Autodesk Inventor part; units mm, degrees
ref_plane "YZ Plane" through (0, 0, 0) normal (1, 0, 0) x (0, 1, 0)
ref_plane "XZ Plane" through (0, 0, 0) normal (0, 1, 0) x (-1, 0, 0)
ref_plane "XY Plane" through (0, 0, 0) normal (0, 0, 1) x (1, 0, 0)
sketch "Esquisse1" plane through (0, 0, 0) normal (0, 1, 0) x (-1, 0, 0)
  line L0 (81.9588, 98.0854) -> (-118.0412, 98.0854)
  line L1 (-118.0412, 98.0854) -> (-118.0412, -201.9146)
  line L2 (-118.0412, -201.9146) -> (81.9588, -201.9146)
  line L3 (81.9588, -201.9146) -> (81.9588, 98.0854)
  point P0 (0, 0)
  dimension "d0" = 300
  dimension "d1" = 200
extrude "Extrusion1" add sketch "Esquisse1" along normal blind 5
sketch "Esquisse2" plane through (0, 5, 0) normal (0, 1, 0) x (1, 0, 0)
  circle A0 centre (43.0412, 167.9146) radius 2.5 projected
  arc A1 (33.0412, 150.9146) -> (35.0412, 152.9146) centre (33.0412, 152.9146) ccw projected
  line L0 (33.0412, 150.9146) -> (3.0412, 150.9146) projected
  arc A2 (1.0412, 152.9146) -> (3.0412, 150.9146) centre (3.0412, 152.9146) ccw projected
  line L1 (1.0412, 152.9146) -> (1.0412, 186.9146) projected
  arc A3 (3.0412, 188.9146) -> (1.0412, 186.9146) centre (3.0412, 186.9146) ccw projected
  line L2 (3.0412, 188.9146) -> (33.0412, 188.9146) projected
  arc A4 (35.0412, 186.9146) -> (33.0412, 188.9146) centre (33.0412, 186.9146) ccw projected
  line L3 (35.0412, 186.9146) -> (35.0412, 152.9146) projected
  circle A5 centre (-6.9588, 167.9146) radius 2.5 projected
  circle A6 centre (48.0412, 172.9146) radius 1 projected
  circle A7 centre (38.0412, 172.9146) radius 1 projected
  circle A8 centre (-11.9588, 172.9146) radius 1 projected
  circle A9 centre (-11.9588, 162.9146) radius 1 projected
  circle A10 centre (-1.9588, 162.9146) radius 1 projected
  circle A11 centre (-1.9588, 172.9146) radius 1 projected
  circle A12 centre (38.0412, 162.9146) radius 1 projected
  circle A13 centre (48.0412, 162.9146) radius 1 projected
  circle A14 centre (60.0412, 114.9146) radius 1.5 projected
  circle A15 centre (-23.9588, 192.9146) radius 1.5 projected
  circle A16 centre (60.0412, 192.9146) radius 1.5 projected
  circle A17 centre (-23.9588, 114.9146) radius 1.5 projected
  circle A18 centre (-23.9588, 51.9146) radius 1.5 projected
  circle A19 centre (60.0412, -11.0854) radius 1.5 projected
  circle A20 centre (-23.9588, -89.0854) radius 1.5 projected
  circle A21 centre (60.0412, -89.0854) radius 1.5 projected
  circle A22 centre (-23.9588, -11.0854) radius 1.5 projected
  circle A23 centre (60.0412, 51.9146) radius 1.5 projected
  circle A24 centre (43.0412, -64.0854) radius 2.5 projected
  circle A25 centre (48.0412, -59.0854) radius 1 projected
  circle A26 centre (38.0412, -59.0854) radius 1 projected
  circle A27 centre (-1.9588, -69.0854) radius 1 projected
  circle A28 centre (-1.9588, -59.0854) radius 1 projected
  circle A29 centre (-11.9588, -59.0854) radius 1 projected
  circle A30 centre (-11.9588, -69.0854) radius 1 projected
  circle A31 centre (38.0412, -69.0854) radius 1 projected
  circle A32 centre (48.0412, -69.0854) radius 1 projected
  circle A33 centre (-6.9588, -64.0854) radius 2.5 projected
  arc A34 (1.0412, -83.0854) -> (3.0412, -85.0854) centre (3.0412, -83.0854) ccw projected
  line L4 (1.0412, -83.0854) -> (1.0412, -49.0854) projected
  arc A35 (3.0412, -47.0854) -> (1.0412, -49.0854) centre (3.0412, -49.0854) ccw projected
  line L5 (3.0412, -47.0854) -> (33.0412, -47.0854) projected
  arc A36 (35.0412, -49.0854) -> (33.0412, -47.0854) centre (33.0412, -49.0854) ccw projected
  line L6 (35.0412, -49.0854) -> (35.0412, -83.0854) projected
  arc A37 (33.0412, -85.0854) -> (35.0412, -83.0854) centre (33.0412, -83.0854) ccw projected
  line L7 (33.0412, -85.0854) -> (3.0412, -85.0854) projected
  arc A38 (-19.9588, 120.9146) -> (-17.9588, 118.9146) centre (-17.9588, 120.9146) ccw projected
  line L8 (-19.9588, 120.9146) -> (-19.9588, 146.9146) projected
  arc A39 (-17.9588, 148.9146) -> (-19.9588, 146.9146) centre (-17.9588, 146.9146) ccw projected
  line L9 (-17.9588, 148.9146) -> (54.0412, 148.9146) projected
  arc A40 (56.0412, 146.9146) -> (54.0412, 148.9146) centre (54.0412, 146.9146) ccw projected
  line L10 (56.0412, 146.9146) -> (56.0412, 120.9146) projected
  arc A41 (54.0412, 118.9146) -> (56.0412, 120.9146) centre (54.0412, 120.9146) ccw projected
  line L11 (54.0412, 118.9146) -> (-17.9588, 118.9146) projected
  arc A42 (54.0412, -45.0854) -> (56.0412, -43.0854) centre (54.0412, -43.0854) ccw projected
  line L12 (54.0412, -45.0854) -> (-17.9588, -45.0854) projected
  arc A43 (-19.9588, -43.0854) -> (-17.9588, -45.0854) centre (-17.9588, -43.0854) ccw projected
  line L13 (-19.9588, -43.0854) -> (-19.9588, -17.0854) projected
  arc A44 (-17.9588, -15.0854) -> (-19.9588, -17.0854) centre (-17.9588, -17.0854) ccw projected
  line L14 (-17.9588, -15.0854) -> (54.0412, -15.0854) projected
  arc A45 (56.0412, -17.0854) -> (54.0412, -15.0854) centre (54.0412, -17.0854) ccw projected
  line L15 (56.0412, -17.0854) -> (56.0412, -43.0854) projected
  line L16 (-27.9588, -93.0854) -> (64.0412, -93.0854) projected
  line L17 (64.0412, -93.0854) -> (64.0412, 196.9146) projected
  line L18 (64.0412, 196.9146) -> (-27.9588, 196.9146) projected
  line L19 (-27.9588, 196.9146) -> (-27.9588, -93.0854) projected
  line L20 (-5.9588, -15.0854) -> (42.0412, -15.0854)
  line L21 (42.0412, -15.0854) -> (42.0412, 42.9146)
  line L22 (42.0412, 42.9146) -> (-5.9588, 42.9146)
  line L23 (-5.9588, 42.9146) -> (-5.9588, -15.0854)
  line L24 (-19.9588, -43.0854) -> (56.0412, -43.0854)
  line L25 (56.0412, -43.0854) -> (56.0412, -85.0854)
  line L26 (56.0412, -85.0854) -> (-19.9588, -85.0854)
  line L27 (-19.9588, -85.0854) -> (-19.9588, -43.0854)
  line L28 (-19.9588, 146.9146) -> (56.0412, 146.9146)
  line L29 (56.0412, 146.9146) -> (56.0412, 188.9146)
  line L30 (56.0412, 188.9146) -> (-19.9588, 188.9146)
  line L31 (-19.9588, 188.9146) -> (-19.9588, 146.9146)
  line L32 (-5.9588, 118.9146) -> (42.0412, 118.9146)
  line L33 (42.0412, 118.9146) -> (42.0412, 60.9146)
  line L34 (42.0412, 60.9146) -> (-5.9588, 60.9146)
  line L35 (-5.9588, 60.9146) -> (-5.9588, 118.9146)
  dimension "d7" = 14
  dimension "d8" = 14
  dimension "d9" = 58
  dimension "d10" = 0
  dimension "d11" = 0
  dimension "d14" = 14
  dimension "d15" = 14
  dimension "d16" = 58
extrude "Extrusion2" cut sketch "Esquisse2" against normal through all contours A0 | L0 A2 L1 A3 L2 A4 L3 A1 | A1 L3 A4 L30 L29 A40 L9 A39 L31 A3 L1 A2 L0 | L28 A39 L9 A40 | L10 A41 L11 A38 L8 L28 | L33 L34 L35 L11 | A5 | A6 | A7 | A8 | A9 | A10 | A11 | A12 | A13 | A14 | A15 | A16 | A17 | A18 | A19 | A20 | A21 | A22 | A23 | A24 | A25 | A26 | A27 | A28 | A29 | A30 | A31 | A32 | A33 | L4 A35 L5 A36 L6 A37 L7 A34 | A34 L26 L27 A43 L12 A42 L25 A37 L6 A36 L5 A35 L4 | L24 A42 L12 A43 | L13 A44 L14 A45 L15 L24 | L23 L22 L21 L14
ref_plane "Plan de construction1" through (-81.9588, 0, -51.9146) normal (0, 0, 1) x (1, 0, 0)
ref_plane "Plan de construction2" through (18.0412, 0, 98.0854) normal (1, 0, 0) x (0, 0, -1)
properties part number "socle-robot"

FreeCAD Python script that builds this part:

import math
import FreeCAD as App
import Part
import Sketcher

V = App.Vector
Q = App.Units.Quantity

doc = App.newDocument("Part")
body = doc.addObject("PartDesign::Body", "Body")

# Sketch on XZ plane
sketch1 = body.newObject("Sketcher::SketchObject", "Sketch")
sketch1.AttachmentSupport = (doc.getObject("XZ_Plane"), [""])
sketch1.MapMode = "FlatFace"
sketch1.addGeometry([
    Part.LineSegment(V(-82, -202, 0), V(-82, 98, 0)),
    Part.LineSegment(V(-82, 98, 0), V(118, 98, 0)),
    Part.LineSegment(V(118, 98, 0), V(118, -202, 0)),
    Part.LineSegment(V(118, -202, 0), V(-82, -202, 0)),
], False)
sketch1.addConstraint([
    Sketcher.Constraint("Coincident", 0, 2, 1, 1),
    Sketcher.Constraint("Coincident", 1, 2, 2, 1),
    Sketcher.Constraint("Coincident", 2, 2, 3, 1),
    Sketcher.Constraint("Coincident", 3, 2, 0, 1),
    Sketcher.Constraint("Vertical", 0),
    Sketcher.Constraint("Horizontal", 1),
    Sketcher.Constraint("Vertical", 2),
    Sketcher.Constraint("Horizontal", 3),
    Sketcher.Constraint("DistanceX", 1, 1, 1, 2, Q("200 mm")),
    Sketcher.Constraint("DistanceY", 0, 1, 0, 2, Q("300 mm")),
    Sketcher.Constraint("DistanceX", 0, 2, -1, 1, Q("81.9588 mm")),
    Sketcher.Constraint("DistanceY", -1, 1, 0, 2, Q("98.0854 mm")),
])
pad1 = body.newObject("PartDesign::Pad", "Pad")
pad1.Profile = sketch1
pad1.Length = 5
pad1.Reversed = True

# Sketch on XZ plane
sketch2 = body.newObject("Sketcher::SketchObject", "Sketch001")
sketch2.AttachmentSupport = (doc.getObject("XZ_Plane"), [""])
sketch2.MapMode = "FlatFace"
sketch2.AttachmentOffset = App.Placement(V(0, 0, -5), App.Rotation())
sketch2.addGeometry([
    Part.LineSegment(V(56, -188.9, 0), V(-20, -188.9, 0)),  # 0
    Part.LineSegment(V(-20, -188.9, 0), V(-20, -120.9, 0)),  # 1
    Part.ArcOfCircle(Part.Circle(V(-18, -120.9, 0), V(0, 0, 1), 2), math.radians(90), math.radians(180)),  # 2
    Part.LineSegment(V(-18, -118.9, 0), V(-6, -118.9, 0)),  # 3
    Part.LineSegment(V(-6, -118.9, 0), V(-6, -60.9, 0)),  # 4
    Part.LineSegment(V(-6, -60.9, 0), V(42, -60.9, 0)),  # 5
    Part.LineSegment(V(42, -60.9, 0), V(42, -118.9, 0)),  # 6
    Part.LineSegment(V(42, -118.9, 0), V(54, -118.9, 0)),  # 7
    Part.ArcOfCircle(Part.Circle(V(54, -120.9, 0), V(0, 0, 1), 2), math.radians(0), math.radians(90)),  # 8
    Part.LineSegment(V(56, -120.9, 0), V(56, -188.9, 0)),  # 9
    Part.Circle(V(60, -114.9, 0), V(0, 0, 1), 1.5),  # 10
    Part.Circle(V(-24, -192.9, 0), V(0, 0, 1), 1.5),  # 11
    Part.Circle(V(60, -192.9, 0), V(0, 0, 1), 1.5),  # 12
    Part.Circle(V(-24, -114.9, 0), V(0, 0, 1), 1.5),  # 13
    Part.Circle(V(-24, -51.9, 0), V(0, 0, 1), 1.5),  # 14
    Part.Circle(V(60, 11.1, 0), V(0, 0, 1), 1.5),  # 15
    Part.Circle(V(-24, 89.1, 0), V(0, 0, 1), 1.5),  # 16
    Part.Circle(V(60, 89.1, 0), V(0, 0, 1), 1.5),  # 17
    Part.Circle(V(-24, 11.1, 0), V(0, 0, 1), 1.5),  # 18
    Part.Circle(V(60, -51.9, 0), V(0, 0, 1), 1.5),  # 19
    Part.LineSegment(V(-20, 85.1, 0), V(56, 85.1, 0)),  # 20
    Part.LineSegment(V(56, 85.1, 0), V(56, 17.1, 0)),  # 21
    Part.ArcOfCircle(Part.Circle(V(54, 17.1, 0), V(0, 0, 1), 2), math.radians(-90), math.radians(0)),  # 22
    Part.LineSegment(V(54, 15.1, 0), V(42, 15.1, 0)),  # 23
    Part.LineSegment(V(42, 15.1, 0), V(42, -42.9, 0)),  # 24
    Part.LineSegment(V(42, -42.9, 0), V(-6, -42.9, 0)),  # 25
    Part.LineSegment(V(-6, -42.9, 0), V(-6, 15.1, 0)),  # 26
    Part.LineSegment(V(-6, 15.1, 0), V(-18, 15.1, 0)),  # 27
    Part.ArcOfCircle(Part.Circle(V(-18, 17.1, 0), V(0, 0, 1), 2), math.radians(180), math.radians(270)),  # 28
    Part.LineSegment(V(-20, 17.1, 0), V(-20, 85.1, 0)),  # 29
], False)
sketch2.addConstraint([
    Sketcher.Constraint("Coincident", 0, 2, 1, 1),
    Sketcher.Constraint("Tangent", 1, 2, 2, 2),
    Sketcher.Constraint("Tangent", 2, 1, 3, 1),
    Sketcher.Constraint("Coincident", 3, 2, 4, 1),
    Sketcher.Constraint("Coincident", 4, 2, 5, 1),
    Sketcher.Constraint("Coincident", 5, 2, 6, 1),
    Sketcher.Constraint("Coincident", 6, 2, 7, 1),
    Sketcher.Constraint("Tangent", 7, 2, 8, 2),
    Sketcher.Constraint("Tangent", 8, 1, 9, 1),
    Sketcher.Constraint("Coincident", 9, 2, 0, 1),
    Sketcher.Constraint("Coincident", 20, 2, 21, 1),
    Sketcher.Constraint("Tangent", 21, 2, 22, 2),
    Sketcher.Constraint("Tangent", 22, 1, 23, 1),
    Sketcher.Constraint("Coincident", 23, 2, 24, 1),
    Sketcher.Constraint("Coincident", 24, 2, 25, 1),
    Sketcher.Constraint("Coincident", 25, 2, 26, 1),
    Sketcher.Constraint("Coincident", 26, 2, 27, 1),
    Sketcher.Constraint("Tangent", 27, 2, 28, 2),
    Sketcher.Constraint("Tangent", 28, 1, 29, 1),
    Sketcher.Constraint("Coincident", 29, 2, 20, 1),
    Sketcher.Constraint("Horizontal", 0),
    Sketcher.Constraint("Vertical", 1),
    Sketcher.Constraint("Horizontal", 3),
    Sketcher.Constraint("Vertical", 4),
    Sketcher.Constraint("Horizontal", 5),
    Sketcher.Constraint("Vertical", 6),
    Sketcher.Constraint("Horizontal", 7),
    Sketcher.Constraint("Vertical", 9),
    Sketcher.Constraint("Horizontal", 20),
    Sketcher.Constraint("Vertical", 21),
    Sketcher.Constraint("Horizontal", 23),
    Sketcher.Constraint("Vertical", 24),
    Sketcher.Constraint("Horizontal", 25),
    Sketcher.Constraint("Vertical", 26),
    Sketcher.Constraint("Horizontal", 27),
    Sketcher.Constraint("Vertical", 29),
    Sketcher.Constraint("Equal", 2, 8),
    Sketcher.Constraint("Equal", 10, 11),
    Sketcher.Constraint("Equal", 11, 12),
    Sketcher.Constraint("Equal", 12, 13),
    Sketcher.Constraint("Equal", 13, 14),
    Sketcher.Constraint("Equal", 14, 15),
    Sketcher.Constraint("Equal", 15, 16),
    Sketcher.Constraint("Equal", 16, 17),
    Sketcher.Constraint("Equal", 17, 18),
    Sketcher.Constraint("Equal", 18, 19),
    Sketcher.Constraint("Equal", 8, 22),
    Sketcher.Constraint("Equal", 22, 28),
    Sketcher.Constraint("Horizontal", 2, 3, 8, 3),
    Sketcher.Constraint("Horizontal", 11, 3, 12, 3),
    Sketcher.Constraint("Horizontal", 10, 3, 13, 3),
    Sketcher.Constraint("Horizontal", 16, 3, 17, 3),
    Sketcher.Constraint("Horizontal", 15, 3, 18, 3),
    Sketcher.Constraint("Horizontal", 14, 3, 19, 3),
    Sketcher.Constraint("Horizontal", 22, 3, 28, 3),
    Sketcher.Constraint("Vertical", 10, 3, 12, 3),
    Sketcher.Constraint("Vertical", 11, 3, 13, 3),
    Sketcher.Constraint("Vertical", 13, 3, 14, 3),
    Sketcher.Constraint("Vertical", 12, 3, 15, 3),
    Sketcher.Constraint("Vertical", 14, 3, 16, 3),
    Sketcher.Constraint("Vertical", 15, 3, 17, 3),
    Sketcher.Constraint("Vertical", 16, 3, 18, 3),
    Sketcher.Constraint("Vertical", 17, 3, 19, 3),
    Sketcher.Constraint("Vertical", 8, 3, 22, 3),
    Sketcher.Constraint("Vertical", 2, 3, 28, 3),
    Sketcher.Constraint("Vertical", 6, 2, 23, 2),
    Sketcher.Constraint("Vertical", 4, 2, 25, 2),
    Sketcher.Constraint("Equal", 3, 7),
    Sketcher.Constraint("Equal", 9, 21),
    Sketcher.Constraint("Equal", 6, 24),
    Sketcher.Constraint("DistanceY", 4, 1, 4, 2, Q("58 mm")),
    Sketcher.Constraint("Diameter", 10, Q("3 mm")),
    Sketcher.Constraint("Radius", 2, Q("2 mm")),
    Sketcher.Constraint("DistanceX", 1, 2, 3, 2, Q("14 mm")),
    Sketcher.Constraint("DistanceX", 0, 2, 0, 1, Q("76 mm")),
    Sketcher.Constraint("DistanceY", 1, 1, 1, 2, Q("68 mm")),
    Sketcher.Constraint("DistanceX", 8, 3, 10, 3, Q("6 mm")),
    Sketcher.Constraint("DistanceY", 8, 3, 10, 3, Q("6 mm")),
    Sketcher.Constraint("DistanceX", 11, 3, 2, 3, Q("6 mm")),
    Sketcher.Constraint("DistanceY", 11, 3, 2, 3, Q("72 mm")),
    Sketcher.Constraint("DistanceY", 13, 3, 14, 3, Q("63 mm")),
    Sketcher.Constraint("DistanceY", 14, 3, 15, 3, Q("63 mm")),
    Sketcher.Constraint("DistanceY", 15, 3, 16, 3, Q("78 mm")),
    Sketcher.Constraint("DistanceY", 15, 3, 22, 3, Q("6 mm")),
    Sketcher.Constraint("DistanceX", 2, 3, -1, 1, Q("17.9588 mm")),
    Sketcher.Constraint("DistanceY", 2, 3, -1, 1, Q("120.9146 mm")),
])
pocket1 = body.newObject("PartDesign::Pocket", "Pocket")
pocket1.Profile = sketch2
pocket1.Type = "ThroughAll"
pocket1.Reversed = True

doc.recompute()
